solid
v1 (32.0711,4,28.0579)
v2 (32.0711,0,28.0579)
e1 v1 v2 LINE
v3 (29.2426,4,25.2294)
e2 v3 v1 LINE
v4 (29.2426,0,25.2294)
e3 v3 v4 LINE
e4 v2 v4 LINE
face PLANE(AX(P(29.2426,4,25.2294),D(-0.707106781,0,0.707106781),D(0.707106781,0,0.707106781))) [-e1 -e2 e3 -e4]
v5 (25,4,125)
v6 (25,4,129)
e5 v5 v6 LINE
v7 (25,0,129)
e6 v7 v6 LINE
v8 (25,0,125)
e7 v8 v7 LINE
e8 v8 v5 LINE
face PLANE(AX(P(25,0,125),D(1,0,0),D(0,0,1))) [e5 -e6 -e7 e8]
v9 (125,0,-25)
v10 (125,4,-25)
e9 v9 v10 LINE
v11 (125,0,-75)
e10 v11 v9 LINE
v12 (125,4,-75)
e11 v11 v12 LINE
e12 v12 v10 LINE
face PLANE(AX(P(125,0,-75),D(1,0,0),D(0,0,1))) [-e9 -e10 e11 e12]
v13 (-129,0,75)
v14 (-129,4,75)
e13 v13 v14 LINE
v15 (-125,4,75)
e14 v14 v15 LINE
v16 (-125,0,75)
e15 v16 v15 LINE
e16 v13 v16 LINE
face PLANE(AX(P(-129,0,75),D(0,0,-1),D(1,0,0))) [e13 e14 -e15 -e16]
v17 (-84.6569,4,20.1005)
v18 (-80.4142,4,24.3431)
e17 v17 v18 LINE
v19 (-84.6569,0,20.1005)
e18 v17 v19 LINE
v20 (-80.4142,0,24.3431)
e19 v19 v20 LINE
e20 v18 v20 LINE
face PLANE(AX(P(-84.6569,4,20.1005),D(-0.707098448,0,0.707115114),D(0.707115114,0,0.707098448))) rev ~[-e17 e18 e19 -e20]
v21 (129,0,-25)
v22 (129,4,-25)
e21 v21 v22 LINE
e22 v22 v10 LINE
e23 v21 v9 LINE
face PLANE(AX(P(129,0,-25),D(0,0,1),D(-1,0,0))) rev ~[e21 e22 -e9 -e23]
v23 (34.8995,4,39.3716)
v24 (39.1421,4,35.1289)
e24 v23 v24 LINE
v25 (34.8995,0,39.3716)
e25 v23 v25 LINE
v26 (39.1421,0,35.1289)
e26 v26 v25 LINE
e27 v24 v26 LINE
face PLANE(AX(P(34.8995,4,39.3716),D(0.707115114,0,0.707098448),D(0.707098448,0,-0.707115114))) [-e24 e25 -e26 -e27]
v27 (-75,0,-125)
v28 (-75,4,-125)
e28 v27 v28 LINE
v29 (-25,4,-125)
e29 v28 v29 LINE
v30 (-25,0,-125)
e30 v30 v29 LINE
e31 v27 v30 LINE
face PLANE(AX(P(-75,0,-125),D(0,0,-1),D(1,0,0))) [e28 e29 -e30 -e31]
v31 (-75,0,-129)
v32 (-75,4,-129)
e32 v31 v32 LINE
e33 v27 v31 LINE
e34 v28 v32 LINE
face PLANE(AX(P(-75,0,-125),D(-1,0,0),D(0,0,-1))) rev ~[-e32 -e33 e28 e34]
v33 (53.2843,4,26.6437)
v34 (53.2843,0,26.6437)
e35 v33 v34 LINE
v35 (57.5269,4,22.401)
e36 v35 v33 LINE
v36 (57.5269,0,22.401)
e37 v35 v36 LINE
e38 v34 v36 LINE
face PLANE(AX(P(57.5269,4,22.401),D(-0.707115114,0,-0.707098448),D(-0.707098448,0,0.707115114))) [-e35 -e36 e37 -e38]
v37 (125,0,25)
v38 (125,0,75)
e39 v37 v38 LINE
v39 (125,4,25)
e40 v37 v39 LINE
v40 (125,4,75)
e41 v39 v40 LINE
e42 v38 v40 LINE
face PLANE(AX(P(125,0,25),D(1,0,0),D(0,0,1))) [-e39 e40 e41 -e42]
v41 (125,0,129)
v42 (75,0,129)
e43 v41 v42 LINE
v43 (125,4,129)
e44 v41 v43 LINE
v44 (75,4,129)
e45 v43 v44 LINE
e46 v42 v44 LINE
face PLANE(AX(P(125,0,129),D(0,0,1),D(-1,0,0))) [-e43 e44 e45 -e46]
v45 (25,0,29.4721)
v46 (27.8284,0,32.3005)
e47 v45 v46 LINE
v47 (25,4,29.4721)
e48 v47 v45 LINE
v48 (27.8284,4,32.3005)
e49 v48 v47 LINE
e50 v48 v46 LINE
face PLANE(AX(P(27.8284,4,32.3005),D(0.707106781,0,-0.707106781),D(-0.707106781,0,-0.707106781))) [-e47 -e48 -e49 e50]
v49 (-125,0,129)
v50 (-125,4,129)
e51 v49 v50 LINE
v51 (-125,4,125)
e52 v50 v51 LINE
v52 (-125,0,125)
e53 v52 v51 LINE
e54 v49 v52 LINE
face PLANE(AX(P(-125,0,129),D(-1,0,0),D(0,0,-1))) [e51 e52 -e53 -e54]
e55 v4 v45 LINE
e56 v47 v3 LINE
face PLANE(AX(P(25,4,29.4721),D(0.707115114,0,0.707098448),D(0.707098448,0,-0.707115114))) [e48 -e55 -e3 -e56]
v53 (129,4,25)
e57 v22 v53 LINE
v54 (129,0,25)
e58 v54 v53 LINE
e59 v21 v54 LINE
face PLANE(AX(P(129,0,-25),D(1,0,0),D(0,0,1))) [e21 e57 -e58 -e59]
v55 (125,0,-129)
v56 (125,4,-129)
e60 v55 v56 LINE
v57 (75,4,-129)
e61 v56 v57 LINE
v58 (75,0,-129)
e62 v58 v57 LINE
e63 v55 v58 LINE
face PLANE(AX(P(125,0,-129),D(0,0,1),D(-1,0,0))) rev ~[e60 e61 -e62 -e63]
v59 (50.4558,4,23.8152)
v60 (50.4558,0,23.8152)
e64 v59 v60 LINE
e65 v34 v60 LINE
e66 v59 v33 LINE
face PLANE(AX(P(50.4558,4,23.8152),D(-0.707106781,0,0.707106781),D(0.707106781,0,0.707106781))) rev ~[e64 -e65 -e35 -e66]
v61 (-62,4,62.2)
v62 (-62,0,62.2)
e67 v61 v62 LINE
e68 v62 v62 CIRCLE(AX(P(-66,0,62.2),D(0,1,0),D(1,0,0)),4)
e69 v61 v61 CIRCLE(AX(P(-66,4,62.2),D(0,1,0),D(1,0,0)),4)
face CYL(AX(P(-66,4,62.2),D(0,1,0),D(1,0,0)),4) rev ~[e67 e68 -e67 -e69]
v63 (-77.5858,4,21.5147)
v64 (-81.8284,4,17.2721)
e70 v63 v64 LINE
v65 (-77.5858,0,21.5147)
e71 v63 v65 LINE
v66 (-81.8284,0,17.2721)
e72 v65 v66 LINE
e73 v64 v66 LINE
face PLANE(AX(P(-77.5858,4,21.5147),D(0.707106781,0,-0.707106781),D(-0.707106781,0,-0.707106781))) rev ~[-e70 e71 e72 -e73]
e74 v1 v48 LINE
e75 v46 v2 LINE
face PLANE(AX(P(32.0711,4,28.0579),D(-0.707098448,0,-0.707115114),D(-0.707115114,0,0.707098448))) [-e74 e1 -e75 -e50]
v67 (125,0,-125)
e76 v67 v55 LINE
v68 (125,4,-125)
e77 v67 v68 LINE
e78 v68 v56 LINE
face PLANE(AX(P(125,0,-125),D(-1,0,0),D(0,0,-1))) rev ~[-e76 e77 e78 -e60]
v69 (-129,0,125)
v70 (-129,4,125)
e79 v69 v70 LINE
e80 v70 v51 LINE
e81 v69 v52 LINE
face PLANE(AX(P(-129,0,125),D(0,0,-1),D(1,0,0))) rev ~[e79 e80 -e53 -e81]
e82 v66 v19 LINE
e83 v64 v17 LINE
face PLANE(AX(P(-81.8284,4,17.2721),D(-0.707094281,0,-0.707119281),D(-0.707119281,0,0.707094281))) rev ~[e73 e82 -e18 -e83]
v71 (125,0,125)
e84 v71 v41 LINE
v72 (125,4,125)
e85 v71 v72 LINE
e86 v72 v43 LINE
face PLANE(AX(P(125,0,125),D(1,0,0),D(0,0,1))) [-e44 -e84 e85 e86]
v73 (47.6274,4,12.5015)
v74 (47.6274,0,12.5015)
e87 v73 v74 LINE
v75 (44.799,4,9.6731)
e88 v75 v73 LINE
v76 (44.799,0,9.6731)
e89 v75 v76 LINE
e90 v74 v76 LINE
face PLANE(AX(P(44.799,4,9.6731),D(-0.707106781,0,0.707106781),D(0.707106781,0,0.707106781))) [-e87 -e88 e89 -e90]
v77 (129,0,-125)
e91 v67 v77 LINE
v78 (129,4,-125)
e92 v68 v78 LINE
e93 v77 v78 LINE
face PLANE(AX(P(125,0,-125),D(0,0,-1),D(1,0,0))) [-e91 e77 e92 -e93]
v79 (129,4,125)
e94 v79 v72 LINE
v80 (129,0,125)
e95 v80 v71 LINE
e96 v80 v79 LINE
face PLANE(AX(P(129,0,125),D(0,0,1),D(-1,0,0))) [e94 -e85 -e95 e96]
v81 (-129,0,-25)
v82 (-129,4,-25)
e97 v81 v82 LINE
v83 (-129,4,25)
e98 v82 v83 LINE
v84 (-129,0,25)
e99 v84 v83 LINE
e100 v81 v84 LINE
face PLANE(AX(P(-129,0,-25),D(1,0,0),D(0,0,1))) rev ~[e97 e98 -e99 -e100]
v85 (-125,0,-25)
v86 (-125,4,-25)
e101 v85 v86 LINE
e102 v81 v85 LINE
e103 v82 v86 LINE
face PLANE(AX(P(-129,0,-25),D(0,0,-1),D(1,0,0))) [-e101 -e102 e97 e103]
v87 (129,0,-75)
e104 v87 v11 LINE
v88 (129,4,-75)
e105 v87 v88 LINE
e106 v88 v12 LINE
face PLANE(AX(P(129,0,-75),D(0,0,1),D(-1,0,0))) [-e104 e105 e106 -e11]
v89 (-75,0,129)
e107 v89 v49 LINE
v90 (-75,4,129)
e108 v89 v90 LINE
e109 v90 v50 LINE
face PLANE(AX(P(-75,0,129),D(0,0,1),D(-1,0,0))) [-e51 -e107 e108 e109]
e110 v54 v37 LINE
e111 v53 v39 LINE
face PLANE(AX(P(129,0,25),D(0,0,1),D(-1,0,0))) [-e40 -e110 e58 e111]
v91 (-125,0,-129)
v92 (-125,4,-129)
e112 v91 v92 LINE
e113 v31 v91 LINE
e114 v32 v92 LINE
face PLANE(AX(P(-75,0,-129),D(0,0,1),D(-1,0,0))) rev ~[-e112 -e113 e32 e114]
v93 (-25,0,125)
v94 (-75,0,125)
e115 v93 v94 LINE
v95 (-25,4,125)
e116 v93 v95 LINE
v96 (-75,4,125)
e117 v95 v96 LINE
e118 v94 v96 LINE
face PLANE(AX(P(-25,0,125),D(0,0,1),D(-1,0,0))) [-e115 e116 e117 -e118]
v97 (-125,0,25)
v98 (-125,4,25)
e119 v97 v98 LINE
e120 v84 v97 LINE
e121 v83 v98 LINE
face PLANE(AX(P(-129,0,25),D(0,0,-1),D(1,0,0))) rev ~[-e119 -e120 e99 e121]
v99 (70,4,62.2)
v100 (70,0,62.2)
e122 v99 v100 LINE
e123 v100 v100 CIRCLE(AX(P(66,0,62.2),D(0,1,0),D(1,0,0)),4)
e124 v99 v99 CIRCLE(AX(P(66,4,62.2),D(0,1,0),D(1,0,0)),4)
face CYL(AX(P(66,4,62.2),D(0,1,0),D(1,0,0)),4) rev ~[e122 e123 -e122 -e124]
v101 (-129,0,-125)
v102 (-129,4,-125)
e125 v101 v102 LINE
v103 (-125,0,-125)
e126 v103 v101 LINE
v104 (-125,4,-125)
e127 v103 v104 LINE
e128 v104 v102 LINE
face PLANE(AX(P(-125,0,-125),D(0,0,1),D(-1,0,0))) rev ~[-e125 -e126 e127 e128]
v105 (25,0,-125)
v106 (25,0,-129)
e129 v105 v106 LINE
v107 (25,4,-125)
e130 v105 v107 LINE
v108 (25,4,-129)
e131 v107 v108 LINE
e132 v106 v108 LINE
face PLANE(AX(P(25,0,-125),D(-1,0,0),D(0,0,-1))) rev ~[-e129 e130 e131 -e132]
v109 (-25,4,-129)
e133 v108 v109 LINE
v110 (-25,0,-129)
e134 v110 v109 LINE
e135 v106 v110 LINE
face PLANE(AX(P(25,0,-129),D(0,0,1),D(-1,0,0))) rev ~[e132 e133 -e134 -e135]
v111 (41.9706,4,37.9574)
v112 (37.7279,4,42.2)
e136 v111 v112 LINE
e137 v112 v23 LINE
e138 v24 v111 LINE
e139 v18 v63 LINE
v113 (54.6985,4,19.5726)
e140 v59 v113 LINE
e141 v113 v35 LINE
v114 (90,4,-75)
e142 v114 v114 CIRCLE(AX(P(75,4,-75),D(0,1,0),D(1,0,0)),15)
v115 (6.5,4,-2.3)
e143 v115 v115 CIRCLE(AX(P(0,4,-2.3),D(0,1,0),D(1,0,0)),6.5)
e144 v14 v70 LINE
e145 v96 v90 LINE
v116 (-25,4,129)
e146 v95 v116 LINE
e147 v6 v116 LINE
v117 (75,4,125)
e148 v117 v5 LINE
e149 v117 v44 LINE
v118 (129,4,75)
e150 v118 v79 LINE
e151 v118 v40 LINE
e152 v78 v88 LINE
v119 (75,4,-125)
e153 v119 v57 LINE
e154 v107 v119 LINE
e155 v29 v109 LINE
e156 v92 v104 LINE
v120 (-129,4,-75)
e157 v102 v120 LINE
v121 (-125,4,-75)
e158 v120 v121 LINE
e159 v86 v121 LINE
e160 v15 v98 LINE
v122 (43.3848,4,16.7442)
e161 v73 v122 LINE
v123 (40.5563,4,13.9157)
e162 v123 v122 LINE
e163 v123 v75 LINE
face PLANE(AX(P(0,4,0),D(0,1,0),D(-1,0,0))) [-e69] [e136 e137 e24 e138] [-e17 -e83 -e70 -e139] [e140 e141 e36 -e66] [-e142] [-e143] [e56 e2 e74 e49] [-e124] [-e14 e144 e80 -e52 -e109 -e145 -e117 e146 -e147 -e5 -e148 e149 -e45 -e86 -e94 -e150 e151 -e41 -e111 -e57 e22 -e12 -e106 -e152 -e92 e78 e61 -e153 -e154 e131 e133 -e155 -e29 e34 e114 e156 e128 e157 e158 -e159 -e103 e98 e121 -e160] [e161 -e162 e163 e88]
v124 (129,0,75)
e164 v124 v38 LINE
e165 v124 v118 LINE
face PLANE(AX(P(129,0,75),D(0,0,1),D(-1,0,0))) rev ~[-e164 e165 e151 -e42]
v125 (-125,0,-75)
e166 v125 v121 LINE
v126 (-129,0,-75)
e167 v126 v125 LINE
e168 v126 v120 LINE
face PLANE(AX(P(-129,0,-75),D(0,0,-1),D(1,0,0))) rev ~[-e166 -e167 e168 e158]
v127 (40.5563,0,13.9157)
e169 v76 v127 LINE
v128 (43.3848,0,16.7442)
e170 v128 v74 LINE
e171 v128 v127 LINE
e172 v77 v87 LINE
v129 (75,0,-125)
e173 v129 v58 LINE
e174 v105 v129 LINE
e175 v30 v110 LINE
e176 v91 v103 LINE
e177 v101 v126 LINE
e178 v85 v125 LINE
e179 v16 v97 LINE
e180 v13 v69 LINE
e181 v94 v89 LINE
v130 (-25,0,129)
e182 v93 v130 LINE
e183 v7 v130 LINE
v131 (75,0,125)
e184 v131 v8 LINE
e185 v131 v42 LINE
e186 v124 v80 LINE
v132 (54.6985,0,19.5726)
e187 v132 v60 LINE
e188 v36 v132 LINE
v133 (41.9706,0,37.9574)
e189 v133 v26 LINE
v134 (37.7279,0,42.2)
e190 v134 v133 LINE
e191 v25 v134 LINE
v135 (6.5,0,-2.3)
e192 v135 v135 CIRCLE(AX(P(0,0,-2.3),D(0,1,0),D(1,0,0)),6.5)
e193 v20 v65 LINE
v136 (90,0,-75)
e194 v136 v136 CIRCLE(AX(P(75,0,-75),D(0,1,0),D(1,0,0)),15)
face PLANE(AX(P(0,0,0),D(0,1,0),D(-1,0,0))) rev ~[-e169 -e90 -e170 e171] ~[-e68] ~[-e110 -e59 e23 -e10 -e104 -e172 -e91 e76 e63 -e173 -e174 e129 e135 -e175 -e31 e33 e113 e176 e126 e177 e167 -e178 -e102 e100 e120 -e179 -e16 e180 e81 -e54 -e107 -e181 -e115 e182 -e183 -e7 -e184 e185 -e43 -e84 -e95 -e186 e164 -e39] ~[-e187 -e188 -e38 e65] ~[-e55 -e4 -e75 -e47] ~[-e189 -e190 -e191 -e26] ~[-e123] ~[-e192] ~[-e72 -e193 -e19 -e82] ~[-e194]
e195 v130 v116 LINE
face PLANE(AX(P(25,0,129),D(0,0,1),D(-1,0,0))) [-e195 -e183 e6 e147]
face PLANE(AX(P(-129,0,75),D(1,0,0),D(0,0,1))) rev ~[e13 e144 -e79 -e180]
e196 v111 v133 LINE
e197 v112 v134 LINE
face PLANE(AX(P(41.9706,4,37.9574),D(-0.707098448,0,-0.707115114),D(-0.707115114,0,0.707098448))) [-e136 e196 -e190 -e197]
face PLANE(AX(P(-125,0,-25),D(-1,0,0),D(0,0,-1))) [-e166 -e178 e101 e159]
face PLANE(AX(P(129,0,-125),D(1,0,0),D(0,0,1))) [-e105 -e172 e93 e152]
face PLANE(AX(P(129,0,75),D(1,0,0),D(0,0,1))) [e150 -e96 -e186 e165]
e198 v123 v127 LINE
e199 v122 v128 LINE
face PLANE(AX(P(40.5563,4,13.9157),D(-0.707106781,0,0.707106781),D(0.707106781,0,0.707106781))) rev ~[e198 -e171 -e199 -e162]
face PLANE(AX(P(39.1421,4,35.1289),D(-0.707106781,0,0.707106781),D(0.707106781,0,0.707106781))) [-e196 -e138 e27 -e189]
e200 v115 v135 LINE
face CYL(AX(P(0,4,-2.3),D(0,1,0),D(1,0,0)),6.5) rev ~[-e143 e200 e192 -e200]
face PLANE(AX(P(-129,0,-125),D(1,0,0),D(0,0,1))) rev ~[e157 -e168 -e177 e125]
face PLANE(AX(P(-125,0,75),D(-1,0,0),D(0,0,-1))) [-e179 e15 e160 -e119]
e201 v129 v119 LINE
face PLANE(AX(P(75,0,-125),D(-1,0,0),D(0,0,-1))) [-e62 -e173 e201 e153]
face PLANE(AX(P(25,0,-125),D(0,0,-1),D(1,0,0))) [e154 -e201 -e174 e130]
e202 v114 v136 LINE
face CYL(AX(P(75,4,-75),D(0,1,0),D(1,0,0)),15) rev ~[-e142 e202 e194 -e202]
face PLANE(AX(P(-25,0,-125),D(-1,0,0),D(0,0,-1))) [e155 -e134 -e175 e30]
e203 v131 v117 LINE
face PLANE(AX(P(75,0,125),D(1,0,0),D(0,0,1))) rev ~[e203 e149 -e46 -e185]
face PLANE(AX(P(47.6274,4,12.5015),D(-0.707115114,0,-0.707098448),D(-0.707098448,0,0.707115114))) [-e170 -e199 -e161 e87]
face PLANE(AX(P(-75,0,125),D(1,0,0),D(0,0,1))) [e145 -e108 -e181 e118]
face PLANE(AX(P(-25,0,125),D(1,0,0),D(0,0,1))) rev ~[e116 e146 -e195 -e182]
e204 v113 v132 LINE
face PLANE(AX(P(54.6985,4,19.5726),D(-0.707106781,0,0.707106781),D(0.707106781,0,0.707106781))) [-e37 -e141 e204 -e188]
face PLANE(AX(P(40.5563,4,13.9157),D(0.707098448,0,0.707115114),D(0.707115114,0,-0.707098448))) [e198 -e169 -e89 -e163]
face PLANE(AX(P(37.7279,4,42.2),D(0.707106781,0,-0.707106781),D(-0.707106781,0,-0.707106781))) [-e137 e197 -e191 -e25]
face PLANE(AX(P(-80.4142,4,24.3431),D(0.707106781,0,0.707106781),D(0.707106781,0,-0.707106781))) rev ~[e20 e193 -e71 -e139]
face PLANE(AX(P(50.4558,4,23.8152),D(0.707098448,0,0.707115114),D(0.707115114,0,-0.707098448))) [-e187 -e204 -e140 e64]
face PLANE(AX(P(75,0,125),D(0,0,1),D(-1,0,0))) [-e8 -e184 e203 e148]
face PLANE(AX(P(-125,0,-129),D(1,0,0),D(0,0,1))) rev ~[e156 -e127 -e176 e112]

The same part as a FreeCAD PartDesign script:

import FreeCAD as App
import Part
import Sketcher
Q = App.Units.Quantity


def add_polygon(sketch, points):
    """Adds a closed chain of lines whose ends are joined by coincident constraints."""
    first, n = sketch.GeometryCount, len(points)
    for a, b in zip(points, points[1:] + points[:1]):
        sketch.addGeometry(Part.LineSegment(App.Vector(*a, 0), App.Vector(*b, 0)), False)
    for i in range(n):
        sketch.addConstraint(Sketcher.Constraint("Coincident", first + i, 2, first + (i + 1) % n, 1))

doc = App.newDocument("Part")
body = doc.addObject("PartDesign::Body", "Body")

# Sketch on XZ plane
sketch1 = body.newObject("Sketcher::SketchObject", "Sketch")
sketch1.AttachmentSupport = (doc.getObject("XZ_Plane"), [""])
sketch1.MapMode = "FlatFace"
add_polygon(sketch1, [(125, 129), (125, 125), (129, 125), (129, 75), (125, 75), (125, 25), (129, 25), (129, -25), (125, -25), (125, -75), (129, -75), (129, -125), (125, -125), (125, -129), (75, -129), (75, -125), (25, -125), (25, -129), (-25, -129), (-25, -125), (-75, -125), (-75, -129), (-125, -129), (-125, -125), (-129, -125), (-129, -75), (-125, -75), (-125, -25), (-129, -25), (-129, 25), (-125, 25), (-125, 75), (-129, 75), (-129, 125), (-125, 125), (-125, 129), (-75, 129), (-75, 125), (-25, 125), (-25, 129), (25, 129), (25, 125), (75, 125), (75, 129)])  # lines 0-43
sketch1.addConstraint([
    Sketcher.Constraint("Vertical", 0),
    Sketcher.Constraint("Horizontal", 1),
    Sketcher.Constraint("Vertical", 2),
    Sketcher.Constraint("Horizontal", 3),
    Sketcher.Constraint("Vertical", 4),
    Sketcher.Constraint("Horizontal", 5),
    Sketcher.Constraint("Vertical", 6),
    Sketcher.Constraint("Horizontal", 7),
    Sketcher.Constraint("Vertical", 8),
    Sketcher.Constraint("Horizontal", 9),
    Sketcher.Constraint("Vertical", 10),
    Sketcher.Constraint("Horizontal", 11),
    Sketcher.Constraint("Vertical", 12),
    Sketcher.Constraint("Horizontal", 13),
    Sketcher.Constraint("Vertical", 14),
    Sketcher.Constraint("Horizontal", 15),
    Sketcher.Constraint("Vertical", 16),
    Sketcher.Constraint("Horizontal", 17),
    Sketcher.Constraint("Vertical", 18),
    Sketcher.Constraint("Horizontal", 19),
    Sketcher.Constraint("Vertical", 20),
    Sketcher.Constraint("Horizontal", 21),
    Sketcher.Constraint("Vertical", 22),
    Sketcher.Constraint("Horizontal", 23),
    Sketcher.Constraint("Vertical", 24),
    Sketcher.Constraint("Horizontal", 25),
    Sketcher.Constraint("Vertical", 26),
    Sketcher.Constraint("Horizontal", 27),
    Sketcher.Constraint("Vertical", 28),
    Sketcher.Constraint("Horizontal", 29),
    Sketcher.Constraint("Vertical", 30),
    Sketcher.Constraint("Horizontal", 31),
    Sketcher.Constraint("Vertical", 32),
    Sketcher.Constraint("Horizontal", 33),
    Sketcher.Constraint("Vertical", 34),
    Sketcher.Constraint("Horizontal", 35),
    Sketcher.Constraint("Vertical", 36),
    Sketcher.Constraint("Horizontal", 37),
    Sketcher.Constraint("Vertical", 38),
    Sketcher.Constraint("Horizontal", 39),
    Sketcher.Constraint("Vertical", 40),
    Sketcher.Constraint("Horizontal", 41),
    Sketcher.Constraint("Vertical", 42),
    Sketcher.Constraint("Horizontal", 43),
    Sketcher.Constraint("Symmetric", 0, 2, 22, 2, -1, 1),
    Sketcher.Constraint("Symmetric", 2, 2, 24, 2, -1, 1),
    Sketcher.Constraint("Symmetric", 4, 2, 26, 2, -1, 1),
    Sketcher.Constraint("Symmetric", 6, 2, 28, 2, -1, 1),
    Sketcher.Constraint("Symmetric", 8, 2, 30, 2, -1, 1),
    Sketcher.Constraint("Symmetric", 10, 2, 32, 2, -1, 1),
    Sketcher.Constraint("Symmetric", 12, 2, 34, 2, -1, 1),
    Sketcher.Constraint("Symmetric", 14, 2, 36, 2, -1, 1),
    Sketcher.Constraint("Symmetric", 16, 2, 38, 2, -1, 1),
    Sketcher.Constraint("Symmetric", 18, 2, 40, 2, -1, 1),
    Sketcher.Constraint("Symmetric", 20, 2, 42, 2, -1, 1),
    Sketcher.Constraint("Symmetric", 15, 2, 18, 2, -2),
    Sketcher.Constraint("Symmetric", 13, 2, 20, 2, -2),
    Sketcher.Constraint("Symmetric", 11, 2, 22, 2, -2),
    Sketcher.Constraint("Symmetric", 9, 2, 24, 2, -2),
    Sketcher.Constraint("Symmetric", 7, 2, 26, 2, -2),
    Sketcher.Constraint("Horizontal", 11, 2, 14, 2),
    Sketcher.Constraint("Horizontal", 13, 2, 16, 2),
    Sketcher.Constraint("Vertical", 0, 2, 3, 2),
    Sketcher.Constraint("Vertical", 2, 2, 5, 2),
    Sketcher.Constraint("Equal", 13, 15),
    Sketcher.Constraint("Equal", 15, 17),
    Sketcher.Constraint("Equal", 33, 0),
    Sketcher.Constraint("Equal", 43, 2),
    Sketcher.Constraint("Equal", 2, 4),
    Sketcher.Constraint("Equal", 4, 6),
    Sketcher.Constraint("DistanceX", 1, 1, 1, 2, 4.0),
    Sketcher.Constraint("DistanceX", 13, 2, 13, 1, 50.0),
])
pad1 = body.newObject("PartDesign::Pad", "Pad")
pad1.Profile = sketch1
pad1.Length = 4
pad1.Reversed = True

# Sketch on XZ plane
sketch2 = body.newObject("Sketcher::SketchObject", "Sketch001")
sketch2.AttachmentSupport = (doc.getObject("XZ_Plane"), [""])
sketch2.MapMode = "FlatFace"
sketch2.AttachmentOffset = App.Placement(App.Vector(0, 0, -4), App.Rotation())
sketch2.addGeometry(Part.Circle(App.Vector(0, -2.3, 0), App.Vector(0, 0, 1), 6.5), False)  # 0
sketch2.addGeometry(Part.Circle(App.Vector(-66, 62.2, 0), App.Vector(0, 0, 1), 4), False)  # 1
sketch2.addGeometry(Part.Circle(App.Vector(66, 62.2, 0), App.Vector(0, 0, 1), 4), False)  # 2
add_polygon(sketch2, [(29.2, 25.2), (25, 29.5), (27.8, 32.3), (32.1, 28.1)])  # lines 3-6
add_polygon(sketch2, [(47.6, 12.5), (44.8, 9.7), (40.6, 13.9), (43.4, 16.7)])  # lines 7-10
add_polygon(sketch2, [(39.1, 35.1), (34.9, 39.4), (37.7, 42.2), (42, 38)])  # lines 11-14
add_polygon(sketch2, [(57.5, 22.4), (54.7, 19.6), (50.5, 23.8), (53.3, 26.6)])  # lines 15-18
sketch2.addConstraint([
    Sketcher.Constraint("Equal", 1, 2),
    Sketcher.Constraint("Symmetric", 1, 3, 2, 3, -2),
    Sketcher.Constraint("PointOnObject", 0, 3, -2),
    Sketcher.Constraint("Perpendicular", 3, 4),
    Sketcher.Constraint("Perpendicular", 4, 5),
    Sketcher.Constraint("Perpendicular", 5, 6),
    Sketcher.Constraint("Parallel", 6, 7),
    Sketcher.Constraint("Perpendicular", 7, 8),
    Sketcher.Constraint("Perpendicular", 8, 9),
    Sketcher.Constraint("Perpendicular", 9, 10),
    Sketcher.Constraint("Parallel", 10, 11),
    Sketcher.Constraint("Perpendicular", 11, 12),
    Sketcher.Constraint("Perpendicular", 12, 13),
    Sketcher.Constraint("Perpendicular", 13, 14),
    Sketcher.Constraint("Parallel", 14, 15),
    Sketcher.Constraint("Perpendicular", 15, 16),
    Sketcher.Constraint("Perpendicular", 16, 17),
    Sketcher.Constraint("Perpendicular", 17, 18),
    Sketcher.Constraint("Equal", 6, 7),
    Sketcher.Constraint("Equal", 5, 8),
    Sketcher.Constraint("Equal", 10, 11),
    Sketcher.Constraint("Equal", 9, 12),
    Sketcher.Constraint("Equal", 14, 15),
    Sketcher.Constraint("Equal", 13, 16),
    Sketcher.Constraint("Diameter", 0, 13.0),
    Sketcher.Constraint("Diameter", 1, 8.0),
    Sketcher.Constraint("Angle", 4, Q("45 deg")),
    Sketcher.Constraint("Distance", 3, 6.0),
    Sketcher.Constraint("Distance", 4, 4.0),
    Sketcher.Constraint("DistanceX", -1, 1, 3, 2, 25.0),
    Sketcher.Constraint("DistanceX", 1, 3, 2, 3, 132.0),
    Sketcher.Constraint("DistanceY", 0, 3, 1, 3, 64.5),
    Sketcher.Constraint("DistanceY", 0, 3, -1, 1, 2.3),
    Sketcher.Constraint("DistanceY", -1, 1, 12, 2, 42.2),
    Sketcher.Constraint("DistanceY", -1, 1, 3, 2, 29.472),
    Sketcher.Constraint("DistanceX", -1, 1, 7, 2, 44.799),
    Sketcher.Constraint("DistanceY", -1, 1, 7, 2, 9.673),
    Sketcher.Constraint("DistanceX", -1, 1, 12, 2, 37.728),
    Sketcher.Constraint("DistanceX", -1, 1, 18, 2, 57.527),
    Sketcher.Constraint("DistanceY", -1, 1, 18, 2, 22.401),
])
pocket1 = body.newObject("PartDesign::Pocket", "Pocket")
pocket1.Profile = sketch2
pocket1.Type = "UpToFirst"
pocket1.Reversed = True

# Sketch on XZ plane
sketch3 = body.newObject("Sketcher::SketchObject", "Sketch002")
sketch3.AttachmentSupport = (doc.getObject("XZ_Plane"), [""])
sketch3.MapMode = "FlatFace"
sketch3.AttachmentOffset = App.Placement(App.Vector(0, 0, -4), App.Rotation())
sketch3.addGeometry(Part.Circle(App.Vector(75, -75, 0), App.Vector(0, 0, 1), 15), False)
sketch3.addConstraint([
    Sketcher.Constraint("Diameter", 0, 30.0),
    Sketcher.Constraint("DistanceX", -1, 1, 0, 3, 75.0),
    Sketcher.Constraint("DistanceY", 0, 3, -1, 1, 75.0),
])
pocket2 = body.newObject("PartDesign::Pocket", "Pocket001")
pocket2.Profile = sketch3
pocket2.Length = 10
pocket2.Reversed = True

# Sketch on XZ plane
sketch4 = body.newObject("Sketcher::SketchObject", "Sketch003")
sketch4.AttachmentSupport = (doc.getObject("XZ_Plane"), [""])
sketch4.MapMode = "FlatFace"
sketch4.AttachmentOffset = App.Placement(App.Vector(0, 0, -4), App.Rotation())
add_polygon(sketch4, [(-84.7, 20.1), (-80.4, 24.3), (-77.6, 21.5), (-81.8, 17.3)])  # lines 0-3
sketch4.addConstraint([
    Sketcher.Constraint("Perpendicular", 0, 1),
    Sketcher.Constraint("Perpendicular", 1, 2),
    Sketcher.Constraint("Perpendicular", 2, 3),
    Sketcher.Constraint("Angle", 1, Q("-45 deg")),
    Sketcher.Constraint("Distance", 0, 6.0),
    Sketcher.Constraint("Distance", 1, 4.0),
    Sketcher.Constraint("DistanceY", -1, 1, 0, 2, 24.343),
    Sketcher.Constraint("DistanceX", 3, 2, -1, 1, 84.657),
])
pocket3 = body.newObject("PartDesign::Pocket", "Pocket002")
pocket3.Profile = sketch4
pocket3.Type = "ThroughAll"
pocket3.Reversed = True

doc.recompute()
